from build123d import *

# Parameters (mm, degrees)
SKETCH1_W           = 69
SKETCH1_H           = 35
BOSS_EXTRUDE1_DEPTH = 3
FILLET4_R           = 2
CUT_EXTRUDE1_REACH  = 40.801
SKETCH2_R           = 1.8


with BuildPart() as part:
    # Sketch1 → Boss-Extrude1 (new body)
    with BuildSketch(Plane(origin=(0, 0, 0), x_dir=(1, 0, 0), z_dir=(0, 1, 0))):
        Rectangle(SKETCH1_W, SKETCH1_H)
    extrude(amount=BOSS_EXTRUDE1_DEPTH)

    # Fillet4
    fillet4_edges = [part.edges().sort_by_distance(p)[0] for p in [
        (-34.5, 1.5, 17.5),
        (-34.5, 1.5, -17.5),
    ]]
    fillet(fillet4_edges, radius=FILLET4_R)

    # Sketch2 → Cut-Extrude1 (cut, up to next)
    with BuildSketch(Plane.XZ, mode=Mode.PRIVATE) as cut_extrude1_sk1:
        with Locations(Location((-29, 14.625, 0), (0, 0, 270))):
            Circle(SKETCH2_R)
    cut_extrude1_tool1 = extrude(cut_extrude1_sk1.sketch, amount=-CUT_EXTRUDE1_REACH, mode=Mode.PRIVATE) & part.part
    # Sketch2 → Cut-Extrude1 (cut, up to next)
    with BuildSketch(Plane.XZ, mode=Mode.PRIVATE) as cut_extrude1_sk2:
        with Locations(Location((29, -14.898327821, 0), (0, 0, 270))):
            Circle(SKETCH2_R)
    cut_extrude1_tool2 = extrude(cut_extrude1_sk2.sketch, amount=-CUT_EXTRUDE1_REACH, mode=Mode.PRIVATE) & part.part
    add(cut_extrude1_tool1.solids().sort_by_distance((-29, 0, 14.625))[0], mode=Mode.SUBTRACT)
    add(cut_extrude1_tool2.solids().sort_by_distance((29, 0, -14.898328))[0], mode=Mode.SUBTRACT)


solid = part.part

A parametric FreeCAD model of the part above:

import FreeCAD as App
import Part
import Sketcher
from FreeCAD import Vector
Q = App.Units.Quantity


def edges_at(feature, points):
    """Names of the edges that pass closest to the given points."""
    edges = feature.Shape.Edges
    near = lambda p: min(range(len(edges)), key=lambda i: edges[i].distToShape(Part.Vertex(*p))[0])
    return sorted({f"Edge{near(p) + 1}" for p in points})


def add_polygon(sketch, points):
    """Adds a closed chain of lines whose ends are joined by coincident constraints."""
    first, n = sketch.GeometryCount, len(points)
    for a, b in zip(points, points[1:] + points[:1]):
        sketch.addGeometry(Part.LineSegment(App.Vector(*a, 0), App.Vector(*b, 0)), False)
    for i in range(n):
        sketch.addConstraint(Sketcher.Constraint("Coincident", first + i, 2, first + (i + 1) % n, 1))

doc = App.newDocument("Part")
body = doc.addObject("PartDesign::Body", "Body")

# Sketch on XZ plane
sketch1 = body.newObject("Sketcher::SketchObject", "Sketch")
sketch1.AttachmentSupport = (doc.getObject("XZ_Plane"), [""])
sketch1.MapMode = "FlatFace"
add_polygon(sketch1, [(-34, -18), (-34, 18), (34, 18), (34, -18)])  # lines 0-3
sketch1.addConstraint([
    Sketcher.Constraint("Vertical", 0),
    Sketcher.Constraint("Horizontal", 1),
    Sketcher.Constraint("Vertical", 2),
    Sketcher.Constraint("Horizontal", 3),
    Sketcher.Constraint("Symmetric", 0, 2, 2, 2, -1, 1),
    Sketcher.Constraint("DistanceX", 1, 1, 1, 2, Q("69 mm")),
    Sketcher.Constraint("DistanceY", 0, 1, 0, 2, Q("35 mm")),
])
pad1 = body.newObject("PartDesign::Pad", "Pad")
pad1.Profile = sketch1
pad1.Length = 3
pad1.Reversed = True
doc.recompute()

fillet = body.newObject("PartDesign::Fillet", "Fillet")
fillet.Base = (pad1, edges_at(pad1, [(-34.5, 1.5, 17.5), (-34.5, 1.5, -17.5)]))
fillet.Radius = 2

# Sketch on XZ plane
sketch2 = body.newObject("Sketcher::SketchObject", "Sketch001")
sketch2.AttachmentSupport = (doc.getObject("XZ_Plane"), [""])
sketch2.MapMode = "FlatFace"
sketch2.addGeometry(Part.Circle(Vector(-29, 14.6, 0), Vector(0, 0, 1), 1.8), False)
sketch2.addConstraint([
    Sketcher.Constraint("Diameter", 0, Q("3.6 mm")),
    Sketcher.Constraint("DistanceX", 0, 3, -1, 1, Q("29 mm")),
    Sketcher.Constraint("DistanceY", -1, 1, 0, 3, Q("14.625 mm")),
])
pocket1 = body.newObject("PartDesign::Pocket", "Pocket")
pocket1.Profile = sketch2
pocket1.Type = "UpToFirst"

# Sketch on XZ plane
sketch3 = body.newObject("Sketcher::SketchObject", "Sketch002")
sketch3.AttachmentSupport = (doc.getObject("XZ_Plane"), [""])
sketch3.MapMode = "FlatFace"
sketch3.addGeometry(Part.Circle(Vector(29, -14.9, 0), Vector(0, 0, 1), 1.8), False)
sketch3.addConstraint([
    Sketcher.Constraint("Diameter", 0, Q("3.6 mm")),
    Sketcher.Constraint("DistanceX", -1, 1, 0, 3, Q("29 mm")),
    Sketcher.Constraint("DistanceY", 0, 3, -1, 1, Q("14.898328 mm")),
])
pocket2 = body.newObject("PartDesign::Pocket", "Pocket001")
pocket2.Profile = sketch3
pocket2.Type = "UpToFirst"

doc.recompute()
